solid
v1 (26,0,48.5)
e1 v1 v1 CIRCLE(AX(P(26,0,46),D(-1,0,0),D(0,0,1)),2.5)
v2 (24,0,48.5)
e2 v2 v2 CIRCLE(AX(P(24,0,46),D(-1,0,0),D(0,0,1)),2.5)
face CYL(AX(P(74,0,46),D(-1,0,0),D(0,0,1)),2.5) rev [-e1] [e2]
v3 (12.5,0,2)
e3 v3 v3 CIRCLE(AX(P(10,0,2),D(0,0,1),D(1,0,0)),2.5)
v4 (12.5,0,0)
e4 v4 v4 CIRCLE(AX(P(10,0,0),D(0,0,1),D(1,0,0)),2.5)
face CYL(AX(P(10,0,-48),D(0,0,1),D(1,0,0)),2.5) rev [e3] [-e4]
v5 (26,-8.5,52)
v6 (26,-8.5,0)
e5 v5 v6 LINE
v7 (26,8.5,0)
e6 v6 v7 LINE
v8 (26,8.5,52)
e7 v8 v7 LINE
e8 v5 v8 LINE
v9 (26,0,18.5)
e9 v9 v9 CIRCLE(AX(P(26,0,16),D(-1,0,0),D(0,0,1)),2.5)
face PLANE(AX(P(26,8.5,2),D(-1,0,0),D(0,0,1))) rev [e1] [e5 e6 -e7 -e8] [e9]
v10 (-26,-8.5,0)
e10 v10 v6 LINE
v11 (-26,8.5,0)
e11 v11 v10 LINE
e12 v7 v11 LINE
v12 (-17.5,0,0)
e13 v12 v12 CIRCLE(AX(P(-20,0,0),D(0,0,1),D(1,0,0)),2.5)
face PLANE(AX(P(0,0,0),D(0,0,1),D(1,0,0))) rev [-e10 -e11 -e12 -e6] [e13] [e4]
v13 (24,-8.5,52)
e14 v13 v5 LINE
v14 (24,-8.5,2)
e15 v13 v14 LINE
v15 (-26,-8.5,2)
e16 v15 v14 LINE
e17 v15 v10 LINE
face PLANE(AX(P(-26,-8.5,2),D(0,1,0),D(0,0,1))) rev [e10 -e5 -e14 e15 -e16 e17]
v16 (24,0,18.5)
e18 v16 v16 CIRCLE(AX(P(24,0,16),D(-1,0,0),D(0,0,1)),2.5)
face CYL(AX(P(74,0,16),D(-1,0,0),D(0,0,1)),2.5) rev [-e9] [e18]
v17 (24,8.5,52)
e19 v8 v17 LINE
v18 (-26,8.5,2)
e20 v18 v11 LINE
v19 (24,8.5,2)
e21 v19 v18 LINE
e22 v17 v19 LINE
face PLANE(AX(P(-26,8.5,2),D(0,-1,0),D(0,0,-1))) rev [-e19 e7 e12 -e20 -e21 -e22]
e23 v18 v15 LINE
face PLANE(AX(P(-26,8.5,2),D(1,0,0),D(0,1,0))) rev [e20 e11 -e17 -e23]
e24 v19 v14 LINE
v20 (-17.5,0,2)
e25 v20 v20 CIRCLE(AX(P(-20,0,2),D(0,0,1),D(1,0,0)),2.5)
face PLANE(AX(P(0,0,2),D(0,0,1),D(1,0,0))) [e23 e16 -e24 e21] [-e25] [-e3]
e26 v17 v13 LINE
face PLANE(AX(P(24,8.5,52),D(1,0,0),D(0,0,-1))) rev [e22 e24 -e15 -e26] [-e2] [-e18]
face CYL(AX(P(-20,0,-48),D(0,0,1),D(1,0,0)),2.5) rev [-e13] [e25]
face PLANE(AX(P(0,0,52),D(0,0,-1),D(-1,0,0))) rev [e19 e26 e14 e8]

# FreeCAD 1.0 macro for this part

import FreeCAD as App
import Part
import Sketcher


def add_polygon(sketch, points):
    """Adds a closed chain of lines whose ends are joined by coincident constraints."""
    first, n = sketch.GeometryCount, len(points)
    for a, b in zip(points, points[1:] + points[:1]):
        sketch.addGeometry(Part.LineSegment(App.Vector(*a, 0), App.Vector(*b, 0)), False)
    for i in range(n):
        sketch.addConstraint(Sketcher.Constraint("Coincident", first + i, 2, first + (i + 1) % n, 1))

doc = App.newDocument("Part")
body = doc.addObject("PartDesign::Body", "Body")

# Sketch on XY plane
sketch1 = body.newObject("Sketcher::SketchObject", "Sketch")
sketch1.AttachmentSupport = (doc.getObject("XY_Plane"), [""])
sketch1.MapMode = "FlatFace"
add_polygon(sketch1, [(-26, 8.5), (-26, -8.5), (26, -8.5), (26, 8.5)])  # lines 0-3
sketch1.addConstraint([
    Sketcher.Constraint("Vertical", 0),
    Sketcher.Constraint("Horizontal", 1),
    Sketcher.Constraint("Vertical", 2),
    Sketcher.Constraint("Horizontal", 3),
    Sketcher.Constraint("Symmetric", 0, 2, 2, 2, -1, 1),
    Sketcher.Constraint("DistanceX", 1, 1, 1, 2, 52.0),
    Sketcher.Constraint("DistanceY", 0, 2, 0, 1, 17.0),
])
pad1 = body.newObject("PartDesign::Pad", "Pad")
pad1.Profile = sketch1
pad1.Length = 2

# Sketch on XY plane
sketch2 = body.newObject("Sketcher::SketchObject", "Sketch001")
sketch2.AttachmentSupport = (doc.getObject("XY_Plane"), [""])
sketch2.MapMode = "FlatFace"
sketch2.AttachmentOffset = App.Placement(App.Vector(0, 0, 2), App.Rotation())
add_polygon(sketch2, [(24, 8.5), (24, -8.5), (26, -8.5), (26, 8.5)])  # lines 0-3
sketch2.addConstraint([
    Sketcher.Constraint("Vertical", 0),
    Sketcher.Constraint("Horizontal", 1),
    Sketcher.Constraint("Vertical", 2),
    Sketcher.Constraint("Horizontal", 3),
    Sketcher.Constraint("DistanceX", 1, 1, 1, 2, 2.0),
    Sketcher.Constraint("DistanceY", 0, 2, 0, 1, 17.0),
    Sketcher.Constraint("DistanceX", -1, 1, 0, 2, 24.0),
    Sketcher.Constraint("DistanceY", 0, 2, -1, 1, 8.5),
])
pad2 = body.newObject("PartDesign::Pad", "Pad001")
pad2.Profile = sketch2
pad2.Length = 50

# Sketch on XY plane
sketch3 = body.newObject("Sketcher::SketchObject", "Sketch002")
sketch3.AttachmentSupport = (doc.getObject("XY_Plane"), [""])
sketch3.MapMode = "FlatFace"
sketch3.AttachmentOffset = App.Placement(App.Vector(0, 0, 2), App.Rotation())
sketch3.addGeometry([
    Part.Circle(App.Vector(-20, 0, 0), App.Vector(0, 0, 1), 2.5),
    Part.Circle(App.Vector(10, 0, 0), App.Vector(0, 0, 1), 2.5),
], False)
sketch3.addConstraint([
    Sketcher.Constraint("Equal", 0, 1),
    Sketcher.Constraint("PointOnObject", 0, 3, -1),
    Sketcher.Constraint("PointOnObject", 1, 3, -1),
    Sketcher.Constraint("Diameter", 0, 5.0),
    Sketcher.Constraint("DistanceX", 0, 3, -1, 1, 20.0),
    Sketcher.Constraint("DistanceX", -1, 1, 1, 3, 10.0),
])
pocket1 = body.newObject("PartDesign::Pocket", "Pocket")
pocket1.Profile = sketch3
pocket1.Length = 50

# Sketch on YZ plane
sketch4 = body.newObject("Sketcher::SketchObject", "Sketch003")
sketch4.AttachmentSupport = (doc.getObject("YZ_Plane"), [""])
sketch4.MapMode = "FlatFace"
sketch4.AttachmentOffset = App.Placement(App.Vector(0, 0, 24), App.Rotation())
sketch4.addGeometry([
    Part.Circle(App.Vector(0, 46, 0), App.Vector(0, 0, 1), 2.5),
    Part.Circle(App.Vector(0, 16, 0), App.Vector(0, 0, 1), 2.5),
], False)
sketch4.addConstraint([
    Sketcher.Constraint("Equal", 0, 1),
    Sketcher.Constraint("PointOnObject", 0, 3, -2),
    Sketcher.Constraint("PointOnObject", 1, 3, -2),
    Sketcher.Constraint("Diameter", 0, 5.0),
    Sketcher.Constraint("DistanceY", -1, 1, 0, 3, 46.0),
    Sketcher.Constraint("DistanceY", -1, 1, 1, 3, 16.0),
])
pocket2 = body.newObject("PartDesign::Pocket", "Pocket001")
pocket2.Profile = sketch4
pocket2.Length = 50
pocket2.Reversed = True

doc.recompute()
